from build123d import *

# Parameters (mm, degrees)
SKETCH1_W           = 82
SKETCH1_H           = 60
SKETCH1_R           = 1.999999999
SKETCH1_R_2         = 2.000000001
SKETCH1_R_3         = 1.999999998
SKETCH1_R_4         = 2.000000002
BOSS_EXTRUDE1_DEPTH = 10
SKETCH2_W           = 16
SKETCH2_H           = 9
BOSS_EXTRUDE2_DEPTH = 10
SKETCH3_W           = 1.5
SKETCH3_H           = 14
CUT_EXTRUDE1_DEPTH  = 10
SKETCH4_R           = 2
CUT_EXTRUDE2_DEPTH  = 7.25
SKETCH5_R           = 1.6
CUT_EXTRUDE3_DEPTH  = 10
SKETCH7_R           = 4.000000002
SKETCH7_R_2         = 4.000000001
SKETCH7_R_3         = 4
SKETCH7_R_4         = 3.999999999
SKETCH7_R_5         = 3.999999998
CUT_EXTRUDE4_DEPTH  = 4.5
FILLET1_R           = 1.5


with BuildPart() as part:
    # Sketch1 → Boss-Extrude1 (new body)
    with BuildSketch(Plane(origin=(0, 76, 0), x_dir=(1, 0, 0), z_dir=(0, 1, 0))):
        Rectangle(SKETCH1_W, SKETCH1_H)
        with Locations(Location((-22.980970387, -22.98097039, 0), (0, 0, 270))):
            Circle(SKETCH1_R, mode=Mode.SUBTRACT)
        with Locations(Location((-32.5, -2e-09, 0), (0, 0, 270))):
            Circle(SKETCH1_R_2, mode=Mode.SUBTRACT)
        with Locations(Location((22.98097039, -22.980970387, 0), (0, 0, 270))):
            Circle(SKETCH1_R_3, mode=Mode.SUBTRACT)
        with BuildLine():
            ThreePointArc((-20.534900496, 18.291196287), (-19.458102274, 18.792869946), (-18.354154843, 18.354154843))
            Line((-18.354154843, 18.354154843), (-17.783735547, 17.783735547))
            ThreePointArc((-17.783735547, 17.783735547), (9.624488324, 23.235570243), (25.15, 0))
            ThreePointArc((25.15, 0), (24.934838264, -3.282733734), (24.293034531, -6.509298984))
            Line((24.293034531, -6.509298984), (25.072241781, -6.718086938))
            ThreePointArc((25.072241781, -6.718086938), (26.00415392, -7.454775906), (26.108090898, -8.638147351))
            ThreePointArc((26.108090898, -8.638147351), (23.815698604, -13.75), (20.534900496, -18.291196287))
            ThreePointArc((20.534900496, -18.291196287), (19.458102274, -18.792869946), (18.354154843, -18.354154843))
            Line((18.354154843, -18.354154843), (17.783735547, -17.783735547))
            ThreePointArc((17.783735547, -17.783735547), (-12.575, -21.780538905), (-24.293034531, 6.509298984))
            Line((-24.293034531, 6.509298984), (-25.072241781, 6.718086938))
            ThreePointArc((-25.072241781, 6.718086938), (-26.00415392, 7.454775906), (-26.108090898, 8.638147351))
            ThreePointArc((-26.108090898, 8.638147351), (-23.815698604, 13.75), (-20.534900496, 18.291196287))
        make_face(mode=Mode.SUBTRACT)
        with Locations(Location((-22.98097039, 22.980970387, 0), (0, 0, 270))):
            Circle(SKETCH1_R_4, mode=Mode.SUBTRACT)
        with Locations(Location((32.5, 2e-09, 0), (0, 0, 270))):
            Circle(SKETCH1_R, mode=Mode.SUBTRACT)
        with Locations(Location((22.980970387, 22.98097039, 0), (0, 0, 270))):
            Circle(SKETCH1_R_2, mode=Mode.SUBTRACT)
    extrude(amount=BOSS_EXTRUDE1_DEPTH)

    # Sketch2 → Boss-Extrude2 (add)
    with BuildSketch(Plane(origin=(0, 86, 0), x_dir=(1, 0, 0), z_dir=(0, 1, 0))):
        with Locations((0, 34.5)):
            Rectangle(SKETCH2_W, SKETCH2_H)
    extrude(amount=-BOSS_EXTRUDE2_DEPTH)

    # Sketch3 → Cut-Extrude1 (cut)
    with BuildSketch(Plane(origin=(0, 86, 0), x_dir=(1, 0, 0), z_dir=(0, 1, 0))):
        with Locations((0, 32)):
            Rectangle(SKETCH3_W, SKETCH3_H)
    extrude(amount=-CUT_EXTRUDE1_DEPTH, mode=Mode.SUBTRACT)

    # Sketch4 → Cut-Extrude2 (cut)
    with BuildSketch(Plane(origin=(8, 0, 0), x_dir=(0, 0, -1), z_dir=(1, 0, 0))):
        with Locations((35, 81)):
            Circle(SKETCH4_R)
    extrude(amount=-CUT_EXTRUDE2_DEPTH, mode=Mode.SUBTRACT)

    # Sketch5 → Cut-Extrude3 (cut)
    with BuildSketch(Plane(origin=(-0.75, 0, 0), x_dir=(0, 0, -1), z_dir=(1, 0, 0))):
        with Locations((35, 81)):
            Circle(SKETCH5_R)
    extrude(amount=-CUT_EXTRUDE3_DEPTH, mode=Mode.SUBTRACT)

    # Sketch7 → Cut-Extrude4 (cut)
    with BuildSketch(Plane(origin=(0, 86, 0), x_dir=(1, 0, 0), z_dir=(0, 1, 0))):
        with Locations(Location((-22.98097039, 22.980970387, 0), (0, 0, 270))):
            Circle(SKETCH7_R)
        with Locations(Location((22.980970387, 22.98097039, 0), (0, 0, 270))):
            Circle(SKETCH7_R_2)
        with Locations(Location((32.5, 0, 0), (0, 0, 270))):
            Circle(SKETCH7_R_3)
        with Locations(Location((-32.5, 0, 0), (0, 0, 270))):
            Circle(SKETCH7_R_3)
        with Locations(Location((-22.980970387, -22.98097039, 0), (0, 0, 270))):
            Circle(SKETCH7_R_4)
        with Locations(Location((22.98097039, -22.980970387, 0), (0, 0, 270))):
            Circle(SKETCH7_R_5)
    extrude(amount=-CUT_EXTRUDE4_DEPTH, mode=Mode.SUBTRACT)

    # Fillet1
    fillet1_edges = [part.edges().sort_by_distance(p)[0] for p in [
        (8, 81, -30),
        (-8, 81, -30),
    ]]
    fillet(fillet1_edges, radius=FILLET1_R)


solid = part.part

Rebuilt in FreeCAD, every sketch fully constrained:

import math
import FreeCAD as App
import Part
import Sketcher
from FreeCAD import Vector
Q = App.Units.Quantity


def edges_at(feature, points):
    """Names of the edges that pass closest to the given points."""
    edges = feature.Shape.Edges
    near = lambda p: min(range(len(edges)), key=lambda i: edges[i].distToShape(Part.Vertex(*p))[0])
    return sorted({f"Edge{near(p) + 1}" for p in points})


def add_polygon(sketch, points):
    """Adds a closed chain of lines whose ends are joined by coincident constraints."""
    first, n = sketch.GeometryCount, len(points)
    for a, b in zip(points, points[1:] + points[:1]):
        sketch.addGeometry(Part.LineSegment(App.Vector(*a, 0), App.Vector(*b, 0)), False)
    for i in range(n):
        sketch.addConstraint(Sketcher.Constraint("Coincident", first + i, 2, first + (i + 1) % n, 1))

doc = App.newDocument("Part")
body = doc.addObject("PartDesign::Body", "Body")

sketch1 = doc.addObject("Sketcher::SketchObject", "Sketch")
body.addObject(sketch1)
sketch1.AttachmentSupport = (doc.XZ_Plane, [""])
sketch1.MapMode = "FlatFace"
sketch1.AttachmentOffset = App.Placement(Vector(0, 0, -76), App.Rotation())
add_polygon(sketch1, [(-41, -30), (-41, 30), (41, 30), (41, -30)])
sketch1.addGeometry(Part.Circle(Vector(-22.98097, 22.98097, 0), Vector(0, 0, 1), 2), False)
sketch1.addGeometry(Part.Circle(Vector(-32.5, 0, 0), Vector(0, 0, 1), 2), False)
sketch1.addGeometry(Part.Circle(Vector(22.98097, 22.98097, 0), Vector(0, 0, 1), 2), False)
sketch1.addGeometry(Part.Circle(Vector(-22.98097, -22.98097, 0), Vector(0, 0, 1), 2), False)
sketch1.addGeometry(Part.ArcOfCircle(Part.Circle(Vector(0, 0, 0), Vector(0, 0, 1), 27.5), math.radians(-161.692638), math.radians(-138.307362)), False)
sketch1.addGeometry(Part.ArcOfCircle(Part.Circle(Vector(-19.414815, -17.293495, 0), Vector(0, 0, 1), 1.5), math.radians(-138.307362), math.radians(-45)), False)
sketch1.addGeometry(Part.LineSegment(Vector(-18.354155, -18.354155, 0), Vector(-17.783736, -17.783736, 0)), False)
sketch1.addGeometry(Part.ArcOfCircle(Part.Circle(Vector(0, 0, 0), Vector(0, 0, 1), 25.15), math.radians(-135), math.radians(0)), False)
sketch1.addGeometry(Part.ArcOfCircle(Part.Circle(Vector(0, 0, 0), Vector(0, 0, 1), 25.15), math.radians(0), math.radians(15)), False)
sketch1.addGeometry(Part.LineSegment(Vector(24.293035, 6.509299, 0), Vector(25.072242, 6.718087, 0)), False)
sketch1.addGeometry(Part.ArcOfCircle(Part.Circle(Vector(24.684013, 8.166976, 0), Vector(0, 0, 1), 1.5), math.radians(-75), math.radians(18.307362)), False)
sketch1.addGeometry(Part.ArcOfCircle(Part.Circle(Vector(0, 0, 0), Vector(0, 0, 1), 27.5), math.radians(18.307362), math.radians(41.692638)), False)
sketch1.addGeometry(Part.ArcOfCircle(Part.Circle(Vector(19.414815, 17.293495, 0), Vector(0, 0, 1), 1.5), math.radians(41.692638), math.radians(135)), False)
sketch1.addGeometry(Part.LineSegment(Vector(18.354155, 18.354155, 0), Vector(17.783736, 17.783736, 0)), False)
sketch1.addGeometry(Part.ArcOfCircle(Part.Circle(Vector(0, 0, 0), Vector(0, 0, 1), 25.15), math.radians(45), math.radians(195)), False)
sketch1.addGeometry(Part.LineSegment(Vector(-24.293035, -6.509299, 0), Vector(-25.072242, -6.718087, 0)), False)
sketch1.addGeometry(Part.ArcOfCircle(Part.Circle(Vector(-24.684013, -8.166976, 0), Vector(0, 0, 1), 1.5), math.radians(105), math.radians(198.307362)), False)
sketch1.addGeometry(Part.Circle(Vector(32.5, 0, 0), Vector(0, 0, 1), 2), False)
sketch1.addGeometry(Part.Circle(Vector(22.98097, -22.98097, 0), Vector(0, 0, 1), 2), False)
sketch1.addConstraint(Sketcher.Constraint("Tangent", 8, 2, 9, 1))
sketch1.addConstraint(Sketcher.Constraint("Tangent", 9, 2, 10, 1))
sketch1.addConstraint(Sketcher.Constraint("Coincident", 10, 2, 11, 1))
sketch1.addConstraint(Sketcher.Constraint("Tangent", 11, 2, 12, 1))
sketch1.addConstraint(Sketcher.Constraint("Coincident", 12, 2, 13, 1))
sketch1.addConstraint(Sketcher.Constraint("Tangent", 13, 2, 14, 1))
sketch1.addConstraint(Sketcher.Constraint("Tangent", 14, 2, 15, 1))
sketch1.addConstraint(Sketcher.Constraint("Tangent", 15, 2, 16, 1))
sketch1.addConstraint(Sketcher.Constraint("Tangent", 16, 2, 17, 1))
sketch1.addConstraint(Sketcher.Constraint("Coincident", 17, 2, 18, 1))
sketch1.addConstraint(Sketcher.Constraint("Coincident", 18, 2, 19, 1))
sketch1.addConstraint(Sketcher.Constraint("Tangent", 19, 2, 20, 1))
sketch1.addConstraint(Sketcher.Constraint("Tangent", 20, 2, 8, 1))
sketch1.addConstraint(Sketcher.Constraint("Vertical", 0))
sketch1.addConstraint(Sketcher.Constraint("Horizontal", 1))
sketch1.addConstraint(Sketcher.Constraint("Vertical", 2))
sketch1.addConstraint(Sketcher.Constraint("Horizontal", 3))
sketch1.addConstraint(Sketcher.Constraint("Coincident", 8, 3, -1, 1))
sketch1.addConstraint(Sketcher.Constraint("Coincident", 11, 3, -1, 1))
sketch1.addConstraint(Sketcher.Constraint("Coincident", 15, 3, -1, 1))
sketch1.addConstraint(Sketcher.Constraint("Coincident", 18, 3, -1, 1))
sketch1.addConstraint(Sketcher.Constraint("Equal", 4, 5))
sketch1.addConstraint(Sketcher.Constraint("Equal", 5, 6))
sketch1.addConstraint(Sketcher.Constraint("Equal", 6, 7))
sketch1.addConstraint(Sketcher.Constraint("Equal", 11, 12))
sketch1.addConstraint(Sketcher.Constraint("Equal", 9, 14))
sketch1.addConstraint(Sketcher.Constraint("Equal", 8, 15))
sketch1.addConstraint(Sketcher.Constraint("Equal", 14, 16))
sketch1.addConstraint(Sketcher.Constraint("Equal", 12, 18))
sketch1.addConstraint(Sketcher.Constraint("Equal", 16, 20))
sketch1.addConstraint(Sketcher.Constraint("Equal", 7, 21))
sketch1.addConstraint(Sketcher.Constraint("Equal", 21, 22))
sketch1.addConstraint(Sketcher.Constraint("Symmetric", 6, 3, 7, 3, -1, 1))
sketch1.addConstraint(Sketcher.Constraint("Symmetric", 5, 3, 21, 3, -1, 1))
sketch1.addConstraint(Sketcher.Constraint("Symmetric", 4, 3, 22, 3, -1, 1))
sketch1.addConstraint(Sketcher.Constraint("Symmetric", 0, 2, 2, 2, -1, 1))
sketch1.addConstraint(Sketcher.Constraint("Symmetric", 9, 2, 16, 2, -1, 1))
sketch1.addConstraint(Sketcher.Constraint("Symmetric", 13, 2, 19, 2, -1, 1))
sketch1.addConstraint(Sketcher.Constraint("Symmetric", 4, 3, 6, 3, -2))
sketch1.addConstraint(Sketcher.Constraint("PointOnObject", 5, 3, -1))
sketch1.addConstraint(Sketcher.Constraint("PointOnObject", 11, 2, -1))
sketch1.addConstraint(Sketcher.Constraint("Equal", 10, 13))
sketch1.addConstraint(Sketcher.Constraint("Diameter", 4, 4.0))
sketch1.addConstraint(Sketcher.Constraint("Radius", 8, 27.5))
sketch1.addConstraint(Sketcher.Constraint("Radius", 9, 1.5))
sketch1.addConstraint(Sketcher.Constraint("DistanceX", 1, 1, 1, 2, 82.0))
sketch1.addConstraint(Sketcher.Constraint("DistanceY", 0, 1, 0, 2, 60.0))
sketch1.addConstraint(Sketcher.Constraint("Angle", 10, Q("45 deg")))
sketch1.addConstraint(Sketcher.Constraint("Angle", 13, Q("15 deg")))
sketch1.addConstraint(Sketcher.Constraint("Radius", 11, 25.15))
sketch1.addConstraint(Sketcher.Constraint("DistanceX", 5, 3, -1, 1, 32.5))
sketch1.addConstraint(Sketcher.Constraint("DistanceX", 8, 2, -1, 1, 20.5349))
sketch1.addConstraint(Sketcher.Constraint("DistanceX", 4, 3, -1, 1, 22.98097))
sketch1.addConstraint(Sketcher.Constraint("DistanceY", -1, 1, 4, 3, 22.98097))
pad1 = doc.addObject("PartDesign::Pad", "Pad")
body.addObject(pad1)
pad1.Profile = sketch1
pad1.Length = 10
pad1.Reversed = True

sketch2 = doc.addObject("Sketcher::SketchObject", "Sketch001")
body.addObject(sketch2)
sketch2.AttachmentSupport = (doc.XZ_Plane, [""])
sketch2.MapMode = "FlatFace"
sketch2.AttachmentOffset = App.Placement(Vector(0, 0, -86), App.Rotation())
add_polygon(sketch2, [(-8, -39), (-8, -30), (8, -30), (8, -39)])
sketch2.addConstraint(Sketcher.Constraint("Vertical", 0))
sketch2.addConstraint(Sketcher.Constraint("Horizontal", 1))
sketch2.addConstraint(Sketcher.Constraint("Vertical", 2))
sketch2.addConstraint(Sketcher.Constraint("Horizontal", 3))
sketch2.addConstraint(Sketcher.Constraint("DistanceX", 1, 1, 1, 2, 16.0))
sketch2.addConstraint(Sketcher.Constraint("DistanceY", 0, 1, 0, 2, 9.0))
sketch2.addConstraint(Sketcher.Constraint("DistanceX", 0, 2, -1, 1, 8.0))
sketch2.addConstraint(Sketcher.Constraint("DistanceY", 0, 2, -1, 1, 30.0))
pad2 = doc.addObject("PartDesign::Pad", "Pad001")
body.addObject(pad2)
pad2.Profile = sketch2
pad2.Length = 10

sketch3 = doc.addObject("Sketcher::SketchObject", "Sketch002")
body.addObject(sketch3)
sketch3.AttachmentSupport = (doc.XZ_Plane, [""])
sketch3.MapMode = "FlatFace"
sketch3.AttachmentOffset = App.Placement(Vector(0, 0, -86), App.Rotation())
add_polygon(sketch3, [(-0.75, -39), (-0.75, -25), (0.75, -25), (0.75, -39)])
sketch3.addConstraint(Sketcher.Constraint("Vertical", 0))
sketch3.addConstraint(Sketcher.Constraint("Horizontal", 1))
sketch3.addConstraint(Sketcher.Constraint("Vertical", 2))
sketch3.addConstraint(Sketcher.Constraint("Horizontal", 3))
sketch3.addConstraint(Sketcher.Constraint("DistanceY", 0, 1, 0, 2, 14.0))
sketch3.addConstraint(Sketcher.Constraint("DistanceX", 1, 1, 1, 2, 1.5))
sketch3.addConstraint(Sketcher.Constraint("DistanceY", 0, 2, -1, 1, 25.0))
sketch3.addConstraint(Sketcher.Constraint("DistanceX", 0, 2, -1, 1, 0.75))
pocket1 = doc.addObject("PartDesign::Pocket", "Pocket")
body.addObject(pocket1)
pocket1.Profile = sketch3
pocket1.Length = 10
pocket1.Reversed = True

sketch4 = doc.addObject("Sketcher::SketchObject", "Sketch003")
body.addObject(sketch4)
sketch4.AttachmentSupport = (doc.YZ_Plane, [""])
sketch4.MapMode = "FlatFace"
sketch4.AttachmentOffset = App.Placement(Vector(0, 0, 8), App.Rotation())
sketch4.addGeometry(Part.Circle(Vector(81, -35, 0), Vector(0, 0, 1), 2), False)
sketch4.addConstraint(Sketcher.Constraint("Diameter", 0, 4.0))
sketch4.addConstraint(Sketcher.Constraint("DistanceX", -1, 1, 0, 3, 81.0))
sketch4.addConstraint(Sketcher.Constraint("DistanceY", 0, 3, -1, 1, 35.0))
pocket2 = doc.addObject("PartDesign::Pocket", "Pocket001")
body.addObject(pocket2)
pocket2.Profile = sketch4
pocket2.Length = 7.25

sketch5 = doc.addObject("Sketcher::SketchObject", "Sketch004")
body.addObject(sketch5)
sketch5.AttachmentSupport = (doc.YZ_Plane, [""])
sketch5.MapMode = "FlatFace"
sketch5.AttachmentOffset = App.Placement(Vector(0, 0, -0.75), App.Rotation())
sketch5.addGeometry(Part.Circle(Vector(81, -35, 0), Vector(0, 0, 1), 1.6), False)
sketch5.addConstraint(Sketcher.Constraint("Diameter", 0, 3.2))
sketch5.addConstraint(Sketcher.Constraint("DistanceX", -1, 1, 0, 3, 81.0))
sketch5.addConstraint(Sketcher.Constraint("DistanceY", 0, 3, -1, 1, 35.0))
pocket3 = doc.addObject("PartDesign::Pocket", "Pocket002")
body.addObject(pocket3)
pocket3.Profile = sketch5
pocket3.Length = 10

sketch6 = doc.addObject("Sketcher::SketchObject", "Sketch005")
body.addObject(sketch6)
sketch6.AttachmentSupport = (doc.XZ_Plane, [""])
sketch6.MapMode = "FlatFace"
sketch6.AttachmentOffset = App.Placement(Vector(0, 0, -86), App.Rotation())
sketch6.addGeometry(Part.Circle(Vector(-22.98097, -22.98097, 0), Vector(0, 0, 1), 4), False)
sketch6.addGeometry(Part.Circle(Vector(22.98097, -22.98097, 0), Vector(0, 0, 1), 4), False)
sketch6.addGeometry(Part.Circle(Vector(32.5, 0, 0), Vector(0, 0, 1), 4), False)
sketch6.addGeometry(Part.Circle(Vector(-32.5, 0, 0), Vector(0, 0, 1), 4), False)
sketch6.addGeometry(Part.Circle(Vector(-22.98097, 22.98097, 0), Vector(0, 0, 1), 4), False)
sketch6.addGeometry(Part.Circle(Vector(22.98097, 22.98097, 0), Vector(0, 0, 1), 4), False)
sketch6.addConstraint(Sketcher.Constraint("Equal", 0, 1))
sketch6.addConstraint(Sketcher.Constraint("Equal", 1, 2))
sketch6.addConstraint(Sketcher.Constraint("Equal", 2, 3))
sketch6.addConstraint(Sketcher.Constraint("Equal", 3, 4))
sketch6.addConstraint(Sketcher.Constraint("Equal", 4, 5))
sketch6.addConstraint(Sketcher.Constraint("Symmetric", 2, 3, 3, 3, -1, 1))
sketch6.addConstraint(Sketcher.Constraint("Symmetric", 1, 3, 4, 3, -1, 1))
sketch6.addConstraint(Sketcher.Constraint("Symmetric", 0, 3, 5, 3, -1, 1))
sketch6.addConstraint(Sketcher.Constraint("Symmetric", 0, 3, 1, 3, -2))
sketch6.addConstraint(Sketcher.Constraint("PointOnObject", 2, 3, -1))
sketch6.addConstraint(Sketcher.Constraint("Diameter", 0, 8.0))
sketch6.addConstraint(Sketcher.Constraint("DistanceX", 3, 3, 2, 3, 65.0))
sketch6.addConstraint(Sketcher.Constraint("DistanceX", 0, 3, -1, 1, 22.98097))
sketch6.addConstraint(Sketcher.Constraint("DistanceY", 0, 3, -1, 1, 22.98097))
pocket4 = doc.addObject("PartDesign::Pocket", "Pocket003")
body.addObject(pocket4)
pocket4.Profile = sketch6
pocket4.Length = 4.5
pocket4.Reversed = True
doc.recompute()

fillet = doc.addObject("PartDesign::Fillet", "Fillet")
body.addObject(fillet)
fillet.Base = (pocket4, edges_at(pocket4, [(8, 81, -30), (-8, 81, -30)]))
fillet.Radius = 1.5

doc.recompute()
